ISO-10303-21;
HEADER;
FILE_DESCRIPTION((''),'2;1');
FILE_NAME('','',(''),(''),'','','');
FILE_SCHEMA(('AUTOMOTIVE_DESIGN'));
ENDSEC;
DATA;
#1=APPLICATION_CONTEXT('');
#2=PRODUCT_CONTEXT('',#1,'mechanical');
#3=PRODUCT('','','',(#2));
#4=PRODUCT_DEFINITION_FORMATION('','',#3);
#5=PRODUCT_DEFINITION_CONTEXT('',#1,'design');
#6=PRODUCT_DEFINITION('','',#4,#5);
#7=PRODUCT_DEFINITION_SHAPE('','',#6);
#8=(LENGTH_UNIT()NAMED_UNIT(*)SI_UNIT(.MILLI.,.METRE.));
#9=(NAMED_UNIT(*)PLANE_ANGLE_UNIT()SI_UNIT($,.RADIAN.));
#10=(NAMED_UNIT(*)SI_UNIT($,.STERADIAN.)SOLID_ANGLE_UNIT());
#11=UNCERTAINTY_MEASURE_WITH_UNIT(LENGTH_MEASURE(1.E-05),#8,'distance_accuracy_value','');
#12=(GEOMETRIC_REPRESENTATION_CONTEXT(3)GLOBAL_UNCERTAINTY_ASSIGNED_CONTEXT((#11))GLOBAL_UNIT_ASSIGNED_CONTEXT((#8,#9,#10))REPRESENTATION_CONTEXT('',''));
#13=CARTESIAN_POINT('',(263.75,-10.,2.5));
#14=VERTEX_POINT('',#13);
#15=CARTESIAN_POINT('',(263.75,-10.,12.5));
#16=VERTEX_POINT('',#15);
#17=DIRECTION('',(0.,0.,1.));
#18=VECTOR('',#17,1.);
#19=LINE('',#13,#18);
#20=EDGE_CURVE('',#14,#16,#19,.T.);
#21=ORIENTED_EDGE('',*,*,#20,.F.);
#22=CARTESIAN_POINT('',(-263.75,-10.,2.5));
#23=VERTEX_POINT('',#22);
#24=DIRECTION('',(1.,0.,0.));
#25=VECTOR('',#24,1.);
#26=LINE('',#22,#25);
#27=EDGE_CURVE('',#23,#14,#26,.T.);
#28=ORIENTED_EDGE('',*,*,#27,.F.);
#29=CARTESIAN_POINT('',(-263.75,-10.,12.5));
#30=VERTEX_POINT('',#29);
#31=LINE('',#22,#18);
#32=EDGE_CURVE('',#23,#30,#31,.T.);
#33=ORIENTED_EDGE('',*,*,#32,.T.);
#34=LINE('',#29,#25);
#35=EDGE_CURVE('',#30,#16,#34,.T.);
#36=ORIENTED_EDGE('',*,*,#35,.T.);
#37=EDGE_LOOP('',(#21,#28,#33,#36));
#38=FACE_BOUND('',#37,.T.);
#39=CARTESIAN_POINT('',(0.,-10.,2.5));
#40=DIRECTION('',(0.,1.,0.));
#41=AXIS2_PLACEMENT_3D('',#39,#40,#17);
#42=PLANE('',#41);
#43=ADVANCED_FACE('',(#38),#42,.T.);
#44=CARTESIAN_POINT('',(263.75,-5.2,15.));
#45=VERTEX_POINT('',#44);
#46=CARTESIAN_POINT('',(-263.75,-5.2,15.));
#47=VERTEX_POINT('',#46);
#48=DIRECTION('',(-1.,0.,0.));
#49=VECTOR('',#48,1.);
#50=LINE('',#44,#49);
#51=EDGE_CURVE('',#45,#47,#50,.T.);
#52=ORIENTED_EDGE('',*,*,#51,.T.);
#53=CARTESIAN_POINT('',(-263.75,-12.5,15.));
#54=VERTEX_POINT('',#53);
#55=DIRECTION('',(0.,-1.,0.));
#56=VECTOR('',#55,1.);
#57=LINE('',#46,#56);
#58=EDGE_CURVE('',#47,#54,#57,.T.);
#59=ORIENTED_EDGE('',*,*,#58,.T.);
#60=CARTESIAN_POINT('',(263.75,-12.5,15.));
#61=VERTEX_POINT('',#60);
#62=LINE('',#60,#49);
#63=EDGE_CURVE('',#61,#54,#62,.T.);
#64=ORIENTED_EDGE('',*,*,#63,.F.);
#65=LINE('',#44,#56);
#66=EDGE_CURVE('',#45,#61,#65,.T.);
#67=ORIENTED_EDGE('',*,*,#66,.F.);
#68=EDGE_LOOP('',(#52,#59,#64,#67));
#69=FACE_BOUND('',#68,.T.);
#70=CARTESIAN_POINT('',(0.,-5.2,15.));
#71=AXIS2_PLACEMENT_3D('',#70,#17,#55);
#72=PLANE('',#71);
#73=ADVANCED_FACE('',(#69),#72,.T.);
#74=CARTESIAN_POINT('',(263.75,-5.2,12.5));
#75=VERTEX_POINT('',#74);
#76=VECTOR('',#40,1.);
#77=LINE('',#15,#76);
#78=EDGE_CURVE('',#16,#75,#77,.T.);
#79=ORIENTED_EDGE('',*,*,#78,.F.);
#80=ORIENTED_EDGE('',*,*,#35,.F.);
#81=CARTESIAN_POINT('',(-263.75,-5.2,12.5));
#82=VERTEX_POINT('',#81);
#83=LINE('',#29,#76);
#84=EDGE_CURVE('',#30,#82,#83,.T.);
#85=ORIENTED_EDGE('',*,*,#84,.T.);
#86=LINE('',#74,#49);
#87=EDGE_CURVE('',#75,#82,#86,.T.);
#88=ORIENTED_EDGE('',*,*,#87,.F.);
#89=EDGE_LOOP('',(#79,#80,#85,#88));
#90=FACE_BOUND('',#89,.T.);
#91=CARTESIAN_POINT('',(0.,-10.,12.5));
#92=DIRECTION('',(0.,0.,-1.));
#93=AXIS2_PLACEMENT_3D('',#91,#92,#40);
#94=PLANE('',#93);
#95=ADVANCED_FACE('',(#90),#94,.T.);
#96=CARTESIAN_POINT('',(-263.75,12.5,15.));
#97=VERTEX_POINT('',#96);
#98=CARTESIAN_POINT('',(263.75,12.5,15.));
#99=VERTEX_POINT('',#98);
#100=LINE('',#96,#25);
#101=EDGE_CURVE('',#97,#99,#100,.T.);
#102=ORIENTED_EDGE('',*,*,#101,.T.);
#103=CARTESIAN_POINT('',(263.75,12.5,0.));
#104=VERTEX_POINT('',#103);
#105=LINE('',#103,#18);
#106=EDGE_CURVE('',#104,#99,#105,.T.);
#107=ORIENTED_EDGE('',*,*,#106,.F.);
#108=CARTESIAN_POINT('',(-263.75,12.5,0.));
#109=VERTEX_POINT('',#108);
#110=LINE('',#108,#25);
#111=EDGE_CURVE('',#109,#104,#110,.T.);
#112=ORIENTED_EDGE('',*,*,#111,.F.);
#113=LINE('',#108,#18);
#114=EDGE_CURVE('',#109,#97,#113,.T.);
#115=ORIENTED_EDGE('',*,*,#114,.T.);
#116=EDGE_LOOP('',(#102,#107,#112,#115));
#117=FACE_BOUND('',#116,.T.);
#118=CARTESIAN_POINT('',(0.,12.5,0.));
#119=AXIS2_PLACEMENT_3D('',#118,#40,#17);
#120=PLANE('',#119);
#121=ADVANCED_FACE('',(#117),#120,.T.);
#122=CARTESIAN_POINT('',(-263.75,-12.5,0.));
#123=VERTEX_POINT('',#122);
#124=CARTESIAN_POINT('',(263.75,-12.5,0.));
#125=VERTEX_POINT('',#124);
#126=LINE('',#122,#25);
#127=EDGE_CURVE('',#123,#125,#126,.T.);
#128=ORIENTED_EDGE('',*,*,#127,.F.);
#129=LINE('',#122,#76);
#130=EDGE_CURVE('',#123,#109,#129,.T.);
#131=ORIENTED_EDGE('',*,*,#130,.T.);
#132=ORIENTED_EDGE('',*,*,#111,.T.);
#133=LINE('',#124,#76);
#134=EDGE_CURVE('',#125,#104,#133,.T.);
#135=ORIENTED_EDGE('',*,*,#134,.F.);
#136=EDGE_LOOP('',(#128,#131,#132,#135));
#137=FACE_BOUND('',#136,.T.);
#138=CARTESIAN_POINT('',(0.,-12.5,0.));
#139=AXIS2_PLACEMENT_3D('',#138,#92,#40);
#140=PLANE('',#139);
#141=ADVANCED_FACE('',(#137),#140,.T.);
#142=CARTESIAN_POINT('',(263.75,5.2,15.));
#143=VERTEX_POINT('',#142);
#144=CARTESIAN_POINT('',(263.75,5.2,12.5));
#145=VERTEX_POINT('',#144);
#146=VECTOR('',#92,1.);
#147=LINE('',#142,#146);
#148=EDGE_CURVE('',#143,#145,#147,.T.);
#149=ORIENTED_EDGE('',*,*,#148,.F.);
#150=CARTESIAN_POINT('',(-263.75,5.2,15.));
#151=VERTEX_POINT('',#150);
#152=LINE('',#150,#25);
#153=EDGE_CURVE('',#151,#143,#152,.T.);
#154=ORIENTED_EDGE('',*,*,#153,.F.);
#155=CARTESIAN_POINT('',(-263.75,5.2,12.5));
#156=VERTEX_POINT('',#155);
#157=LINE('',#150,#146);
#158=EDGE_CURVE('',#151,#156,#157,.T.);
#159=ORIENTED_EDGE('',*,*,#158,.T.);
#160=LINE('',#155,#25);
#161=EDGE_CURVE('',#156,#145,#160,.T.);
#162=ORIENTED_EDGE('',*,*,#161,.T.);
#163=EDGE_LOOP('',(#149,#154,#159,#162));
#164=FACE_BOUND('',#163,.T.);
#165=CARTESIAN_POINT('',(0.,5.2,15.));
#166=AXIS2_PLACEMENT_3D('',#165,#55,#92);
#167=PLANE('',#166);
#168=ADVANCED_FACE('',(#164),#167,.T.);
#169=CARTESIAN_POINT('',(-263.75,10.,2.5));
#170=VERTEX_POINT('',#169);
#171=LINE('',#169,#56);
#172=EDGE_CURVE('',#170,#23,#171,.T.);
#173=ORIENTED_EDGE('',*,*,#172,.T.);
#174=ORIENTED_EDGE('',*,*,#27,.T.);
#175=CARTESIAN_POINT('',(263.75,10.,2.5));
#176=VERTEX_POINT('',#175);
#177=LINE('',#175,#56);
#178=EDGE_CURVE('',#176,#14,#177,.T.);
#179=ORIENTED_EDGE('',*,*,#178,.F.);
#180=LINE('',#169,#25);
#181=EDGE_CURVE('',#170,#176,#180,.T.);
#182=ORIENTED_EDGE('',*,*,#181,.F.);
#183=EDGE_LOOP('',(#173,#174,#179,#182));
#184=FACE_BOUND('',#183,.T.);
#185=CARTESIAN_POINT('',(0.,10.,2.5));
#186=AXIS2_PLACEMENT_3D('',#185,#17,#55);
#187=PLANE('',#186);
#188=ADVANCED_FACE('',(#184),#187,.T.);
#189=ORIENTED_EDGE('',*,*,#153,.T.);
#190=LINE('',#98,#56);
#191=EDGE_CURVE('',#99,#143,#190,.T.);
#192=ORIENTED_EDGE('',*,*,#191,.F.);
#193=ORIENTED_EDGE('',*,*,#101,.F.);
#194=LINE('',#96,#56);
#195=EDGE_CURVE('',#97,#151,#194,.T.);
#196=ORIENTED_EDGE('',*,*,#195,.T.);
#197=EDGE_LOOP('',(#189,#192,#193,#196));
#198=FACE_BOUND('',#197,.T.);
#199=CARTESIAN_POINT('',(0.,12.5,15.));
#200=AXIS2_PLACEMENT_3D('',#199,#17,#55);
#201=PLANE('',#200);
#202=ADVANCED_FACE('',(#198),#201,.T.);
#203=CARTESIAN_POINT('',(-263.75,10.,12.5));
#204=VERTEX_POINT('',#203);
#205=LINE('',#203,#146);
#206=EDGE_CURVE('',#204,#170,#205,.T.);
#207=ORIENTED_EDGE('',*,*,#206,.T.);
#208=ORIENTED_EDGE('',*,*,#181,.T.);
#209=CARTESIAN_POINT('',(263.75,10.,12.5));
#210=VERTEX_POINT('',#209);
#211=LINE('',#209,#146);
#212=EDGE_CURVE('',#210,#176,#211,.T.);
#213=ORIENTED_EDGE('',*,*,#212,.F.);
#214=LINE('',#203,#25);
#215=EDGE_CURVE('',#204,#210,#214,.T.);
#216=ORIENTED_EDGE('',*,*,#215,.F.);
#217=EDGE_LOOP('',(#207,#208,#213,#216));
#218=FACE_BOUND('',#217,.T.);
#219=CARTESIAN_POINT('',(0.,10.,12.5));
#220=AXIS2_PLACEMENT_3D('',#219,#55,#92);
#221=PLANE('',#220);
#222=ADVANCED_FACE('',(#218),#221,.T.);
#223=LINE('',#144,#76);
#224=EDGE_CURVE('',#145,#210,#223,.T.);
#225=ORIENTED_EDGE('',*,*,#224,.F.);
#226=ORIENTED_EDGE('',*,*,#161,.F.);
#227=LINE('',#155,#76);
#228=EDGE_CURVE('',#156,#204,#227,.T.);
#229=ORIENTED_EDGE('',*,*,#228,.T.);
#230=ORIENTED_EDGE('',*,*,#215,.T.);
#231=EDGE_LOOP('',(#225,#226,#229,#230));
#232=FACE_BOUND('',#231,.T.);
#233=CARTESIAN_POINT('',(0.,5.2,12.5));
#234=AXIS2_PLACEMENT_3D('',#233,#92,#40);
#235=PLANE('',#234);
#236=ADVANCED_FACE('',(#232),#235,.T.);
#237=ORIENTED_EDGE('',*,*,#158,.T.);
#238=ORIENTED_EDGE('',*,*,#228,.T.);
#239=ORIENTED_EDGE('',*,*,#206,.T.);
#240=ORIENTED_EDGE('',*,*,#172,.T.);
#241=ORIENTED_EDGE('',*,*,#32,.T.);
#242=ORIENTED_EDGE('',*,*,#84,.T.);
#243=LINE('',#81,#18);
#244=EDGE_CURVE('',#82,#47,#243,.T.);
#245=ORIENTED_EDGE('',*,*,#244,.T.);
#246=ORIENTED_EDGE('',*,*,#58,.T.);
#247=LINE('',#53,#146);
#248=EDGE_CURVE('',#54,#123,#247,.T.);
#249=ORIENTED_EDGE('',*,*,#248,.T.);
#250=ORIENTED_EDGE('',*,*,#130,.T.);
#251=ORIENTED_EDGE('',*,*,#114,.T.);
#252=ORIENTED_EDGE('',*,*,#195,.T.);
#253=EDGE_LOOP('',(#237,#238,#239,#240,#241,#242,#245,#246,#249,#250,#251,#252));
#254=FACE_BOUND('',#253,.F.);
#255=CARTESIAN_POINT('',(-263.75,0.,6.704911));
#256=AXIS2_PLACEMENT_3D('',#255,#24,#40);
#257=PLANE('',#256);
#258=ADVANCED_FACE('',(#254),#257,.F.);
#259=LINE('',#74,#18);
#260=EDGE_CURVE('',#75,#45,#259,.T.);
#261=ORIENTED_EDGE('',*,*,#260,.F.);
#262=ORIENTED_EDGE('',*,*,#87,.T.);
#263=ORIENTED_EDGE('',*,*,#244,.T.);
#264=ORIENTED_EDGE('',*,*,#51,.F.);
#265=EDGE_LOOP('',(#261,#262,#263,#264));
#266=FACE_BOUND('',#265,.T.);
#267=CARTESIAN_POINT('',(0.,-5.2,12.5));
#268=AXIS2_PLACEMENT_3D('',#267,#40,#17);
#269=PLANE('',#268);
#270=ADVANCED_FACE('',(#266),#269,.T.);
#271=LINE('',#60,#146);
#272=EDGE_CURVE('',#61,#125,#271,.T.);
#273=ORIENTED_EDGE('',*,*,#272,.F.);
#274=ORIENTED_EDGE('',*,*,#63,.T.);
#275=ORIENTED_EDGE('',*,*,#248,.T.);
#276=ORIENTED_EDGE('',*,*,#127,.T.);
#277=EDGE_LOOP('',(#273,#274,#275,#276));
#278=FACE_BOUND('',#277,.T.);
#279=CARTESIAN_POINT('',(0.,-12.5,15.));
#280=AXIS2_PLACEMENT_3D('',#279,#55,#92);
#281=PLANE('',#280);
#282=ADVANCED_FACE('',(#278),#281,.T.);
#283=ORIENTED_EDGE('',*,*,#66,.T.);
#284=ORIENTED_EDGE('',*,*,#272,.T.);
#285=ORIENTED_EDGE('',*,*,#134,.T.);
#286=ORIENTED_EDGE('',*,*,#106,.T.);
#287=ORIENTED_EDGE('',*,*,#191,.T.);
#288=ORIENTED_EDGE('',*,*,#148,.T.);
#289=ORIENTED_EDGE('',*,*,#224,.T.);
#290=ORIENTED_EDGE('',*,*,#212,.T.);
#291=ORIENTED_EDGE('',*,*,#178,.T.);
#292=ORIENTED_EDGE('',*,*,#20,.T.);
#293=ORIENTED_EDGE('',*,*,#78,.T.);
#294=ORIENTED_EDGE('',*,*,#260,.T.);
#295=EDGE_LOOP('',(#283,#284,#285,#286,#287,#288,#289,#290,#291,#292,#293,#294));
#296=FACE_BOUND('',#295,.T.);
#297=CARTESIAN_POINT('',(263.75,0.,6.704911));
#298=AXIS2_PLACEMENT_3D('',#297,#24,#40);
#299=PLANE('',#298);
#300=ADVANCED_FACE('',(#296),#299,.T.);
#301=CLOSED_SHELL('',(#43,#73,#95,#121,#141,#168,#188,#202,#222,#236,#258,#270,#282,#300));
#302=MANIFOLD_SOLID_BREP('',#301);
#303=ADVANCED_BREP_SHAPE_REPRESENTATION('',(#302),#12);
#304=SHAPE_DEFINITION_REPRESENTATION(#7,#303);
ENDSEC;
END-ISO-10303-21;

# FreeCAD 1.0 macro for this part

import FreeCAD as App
import Part
import Sketcher
from FreeCAD import Vector


def add_polygon(sketch, points):
    """Adds a closed chain of lines whose ends are joined by coincident constraints."""
    first, n = sketch.GeometryCount, len(points)
    for a, b in zip(points, points[1:] + points[:1]):
        sketch.addGeometry(Part.LineSegment(App.Vector(*a, 0), App.Vector(*b, 0)), False)
    for i in range(n):
        sketch.addConstraint(Sketcher.Constraint("Coincident", first + i, 2, first + (i + 1) % n, 1))

doc = App.newDocument("Part")
body = doc.addObject("PartDesign::Body", "Body")

# Sketch on YZ plane
sketch1 = body.newObject("Sketcher::SketchObject", "Sketch")
sketch1.AttachmentSupport = (doc.getObject("YZ_Plane"), [""])
sketch1.MapMode = "FlatFace"
add_polygon(sketch1, [(-12.5, 15), (-12.5, 0), (12.5, 0), (12.5, 15), (5.2, 15), (5.2, 12.5), (10, 12.5), (10, 2.5), (-10, 2.5), (-10, 12.5), (-5.2, 12.5), (-5.2, 15)])  # lines 0-11
sketch1.addConstraint(Sketcher.Constraint("Vertical", 0))
sketch1.addConstraint(Sketcher.Constraint("Horizontal", 1))
sketch1.addConstraint(Sketcher.Constraint("Vertical", 2))
sketch1.addConstraint(Sketcher.Constraint("Horizontal", 3))
sketch1.addConstraint(Sketcher.Constraint("Vertical", 4))
sketch1.addConstraint(Sketcher.Constraint("Horizontal", 5))
sketch1.addConstraint(Sketcher.Constraint("Vertical", 6))
sketch1.addConstraint(Sketcher.Constraint("Horizontal", 7))
sketch1.addConstraint(Sketcher.Constraint("Vertical", 8))
sketch1.addConstraint(Sketcher.Constraint("Horizontal", 9))
sketch1.addConstraint(Sketcher.Constraint("Vertical", 10))
sketch1.addConstraint(Sketcher.Constraint("Horizontal", 11))
sketch1.addConstraint(Sketcher.Constraint("Symmetric", 0, 2, 1, 2, -1, 1))
sketch1.addConstraint(Sketcher.Constraint("Symmetric", 5, 2, 8, 2, -2))
sketch1.addConstraint(Sketcher.Constraint("Symmetric", 3, 2, 10, 2, -2))
sketch1.addConstraint(Sketcher.Constraint("DistanceX", 1, 1, 1, 2, 25.0))
sketch1.addConstraint(Sketcher.Constraint("DistanceX", 7, 2, 7, 1, 20.0))
sketch1.addConstraint(Sketcher.Constraint("DistanceY", 0, 2, 0, 1, 15.0))
sketch1.addConstraint(Sketcher.Constraint("DistanceY", 6, 2, 6, 1, 10.0))
sketch1.addConstraint(Sketcher.Constraint("DistanceX", 3, 2, 3, 1, 7.3))
sketch1.addConstraint(Sketcher.Constraint("DistanceY", 4, 2, 4, 1, 2.5))
pad1 = body.newObject("PartDesign::Pad", "Pad")
pad1.Profile = sketch1
pad1.Length = 527.5
pad1.Midplane = True

doc.recompute()
